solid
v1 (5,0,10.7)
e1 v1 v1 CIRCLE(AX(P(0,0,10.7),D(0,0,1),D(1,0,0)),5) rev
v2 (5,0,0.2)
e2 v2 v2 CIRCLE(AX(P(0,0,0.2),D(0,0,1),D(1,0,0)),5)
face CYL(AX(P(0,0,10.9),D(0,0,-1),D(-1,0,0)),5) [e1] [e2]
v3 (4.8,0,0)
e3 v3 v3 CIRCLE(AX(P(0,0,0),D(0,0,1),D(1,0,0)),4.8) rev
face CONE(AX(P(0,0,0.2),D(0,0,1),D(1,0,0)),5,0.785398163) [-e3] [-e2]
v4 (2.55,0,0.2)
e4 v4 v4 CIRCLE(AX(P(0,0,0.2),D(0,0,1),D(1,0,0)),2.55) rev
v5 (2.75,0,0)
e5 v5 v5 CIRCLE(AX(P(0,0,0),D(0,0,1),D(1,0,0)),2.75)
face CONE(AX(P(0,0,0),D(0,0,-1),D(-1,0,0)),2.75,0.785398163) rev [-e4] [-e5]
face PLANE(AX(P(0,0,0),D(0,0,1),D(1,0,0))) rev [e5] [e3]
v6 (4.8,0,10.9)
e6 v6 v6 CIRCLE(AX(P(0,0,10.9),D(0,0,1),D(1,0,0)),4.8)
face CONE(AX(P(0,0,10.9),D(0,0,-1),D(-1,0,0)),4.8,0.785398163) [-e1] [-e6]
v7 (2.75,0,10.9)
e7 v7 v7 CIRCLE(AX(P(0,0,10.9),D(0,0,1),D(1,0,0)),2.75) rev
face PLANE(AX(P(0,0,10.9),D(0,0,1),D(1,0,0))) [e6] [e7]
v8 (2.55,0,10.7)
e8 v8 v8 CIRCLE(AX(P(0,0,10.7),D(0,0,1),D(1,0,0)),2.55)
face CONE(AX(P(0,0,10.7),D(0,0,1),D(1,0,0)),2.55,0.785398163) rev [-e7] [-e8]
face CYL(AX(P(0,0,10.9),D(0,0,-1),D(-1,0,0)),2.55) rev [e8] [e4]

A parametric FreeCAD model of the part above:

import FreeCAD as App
import Part
import Sketcher
from FreeCAD import Vector
Q = App.Units.Quantity


def edges_at(feature, points):
    """Names of the edges that pass closest to the given points."""
    edges = feature.Shape.Edges
    near = lambda p: min(range(len(edges)), key=lambda i: edges[i].distToShape(Part.Vertex(*p))[0])
    return sorted({f"Edge{near(p) + 1}" for p in points})

doc = App.newDocument("Part")
params = doc.addObject("Spreadsheet::Sheet", "Params")
for row, (alias, value) in enumerate([
    ("sketch1_diameter", "10 mm"),
    ("sketch1_diameter2", "5.1 mm"),
    ("pad1_length", "10.9 mm"),
    ("chamfer_size", "0.2 mm"),
], start=1):
    params.set(f"A{row}", alias)
    params.set(f"B{row}", "=" + value)
    params.setAlias(f"B{row}", alias)

body = doc.addObject("PartDesign::Body", "Body")

# Sketch on XY plane
sketch1 = body.newObject("Sketcher::SketchObject", "Sketch")
sketch1.AttachmentSupport = (doc.getObject("XY_Plane"), [""])
sketch1.MapMode = "FlatFace"
sketch1.addGeometry([
    Part.Circle(Vector(0, 0, 0), Vector(0, 0, 1), 5),
    Part.Circle(Vector(0, 0, 0), Vector(0, 0, 1), 2.5),
], False)
sketch1.addConstraint([
    Sketcher.Constraint("Coincident", 0, 3, -1, 1),
    Sketcher.Constraint("Coincident", 1, 3, -1, 1),
    Sketcher.Constraint("Diameter", 0, Q("10 mm")),
    Sketcher.Constraint("Diameter", 1, Q("5.1 mm")),
])
sketch1.setExpression("Constraints[2]", "Params.sketch1_diameter")
sketch1.setExpression("Constraints[3]", "Params.sketch1_diameter2")
pad1 = body.newObject("PartDesign::Pad", "Pad")
pad1.Profile = sketch1
pad1.setExpression("Length", "Params.pad1_length")
doc.recompute()

chamfer = body.newObject("PartDesign::Chamfer", "Chamfer")
chamfer.Base = (pad1, edges_at(pad1, [
    (-5, 0, 0),
    (-5, 0, 10.9),
    (-2.55, 0, 0),
    (-2.55, 0, 10.9),
]))
chamfer.setExpression("Size", "Params.chamfer_size")

doc.recompute()
